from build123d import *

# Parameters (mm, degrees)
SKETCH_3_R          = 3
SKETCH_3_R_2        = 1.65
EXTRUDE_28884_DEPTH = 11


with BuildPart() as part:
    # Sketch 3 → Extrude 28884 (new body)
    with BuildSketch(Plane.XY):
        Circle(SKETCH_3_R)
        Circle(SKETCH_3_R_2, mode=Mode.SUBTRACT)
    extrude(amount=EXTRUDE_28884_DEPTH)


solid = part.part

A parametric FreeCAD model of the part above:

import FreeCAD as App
import Part
import Sketcher
from FreeCAD import Vector

doc = App.newDocument("Part")
body = doc.addObject("PartDesign::Body", "Body")

sketch1 = body.newObject("Sketcher::SketchObject", "Sketch")
sketch1.AttachmentSupport = (doc.getObject("XY_Plane"), [""])
sketch1.MapMode = "FlatFace"
sketch1.addGeometry([
    Part.Circle(Vector(0, 0, 0), Vector(0, 0, 1), 3),
    Part.Circle(Vector(0, 0, 0), Vector(0, 0, 1), 1.6),
], False)
sketch1.addConstraint([
    Sketcher.Constraint("Coincident", 0, 3, -1, 1),
    Sketcher.Constraint("Coincident", 1, 3, -1, 1),
    Sketcher.Constraint("Diameter", 0, 6.0),
    Sketcher.Constraint("Diameter", 1, 3.3),
])
pad1 = body.newObject("PartDesign::Pad", "Pad")
pad1.Profile = sketch1
pad1.Length = 11

doc.recompute()
